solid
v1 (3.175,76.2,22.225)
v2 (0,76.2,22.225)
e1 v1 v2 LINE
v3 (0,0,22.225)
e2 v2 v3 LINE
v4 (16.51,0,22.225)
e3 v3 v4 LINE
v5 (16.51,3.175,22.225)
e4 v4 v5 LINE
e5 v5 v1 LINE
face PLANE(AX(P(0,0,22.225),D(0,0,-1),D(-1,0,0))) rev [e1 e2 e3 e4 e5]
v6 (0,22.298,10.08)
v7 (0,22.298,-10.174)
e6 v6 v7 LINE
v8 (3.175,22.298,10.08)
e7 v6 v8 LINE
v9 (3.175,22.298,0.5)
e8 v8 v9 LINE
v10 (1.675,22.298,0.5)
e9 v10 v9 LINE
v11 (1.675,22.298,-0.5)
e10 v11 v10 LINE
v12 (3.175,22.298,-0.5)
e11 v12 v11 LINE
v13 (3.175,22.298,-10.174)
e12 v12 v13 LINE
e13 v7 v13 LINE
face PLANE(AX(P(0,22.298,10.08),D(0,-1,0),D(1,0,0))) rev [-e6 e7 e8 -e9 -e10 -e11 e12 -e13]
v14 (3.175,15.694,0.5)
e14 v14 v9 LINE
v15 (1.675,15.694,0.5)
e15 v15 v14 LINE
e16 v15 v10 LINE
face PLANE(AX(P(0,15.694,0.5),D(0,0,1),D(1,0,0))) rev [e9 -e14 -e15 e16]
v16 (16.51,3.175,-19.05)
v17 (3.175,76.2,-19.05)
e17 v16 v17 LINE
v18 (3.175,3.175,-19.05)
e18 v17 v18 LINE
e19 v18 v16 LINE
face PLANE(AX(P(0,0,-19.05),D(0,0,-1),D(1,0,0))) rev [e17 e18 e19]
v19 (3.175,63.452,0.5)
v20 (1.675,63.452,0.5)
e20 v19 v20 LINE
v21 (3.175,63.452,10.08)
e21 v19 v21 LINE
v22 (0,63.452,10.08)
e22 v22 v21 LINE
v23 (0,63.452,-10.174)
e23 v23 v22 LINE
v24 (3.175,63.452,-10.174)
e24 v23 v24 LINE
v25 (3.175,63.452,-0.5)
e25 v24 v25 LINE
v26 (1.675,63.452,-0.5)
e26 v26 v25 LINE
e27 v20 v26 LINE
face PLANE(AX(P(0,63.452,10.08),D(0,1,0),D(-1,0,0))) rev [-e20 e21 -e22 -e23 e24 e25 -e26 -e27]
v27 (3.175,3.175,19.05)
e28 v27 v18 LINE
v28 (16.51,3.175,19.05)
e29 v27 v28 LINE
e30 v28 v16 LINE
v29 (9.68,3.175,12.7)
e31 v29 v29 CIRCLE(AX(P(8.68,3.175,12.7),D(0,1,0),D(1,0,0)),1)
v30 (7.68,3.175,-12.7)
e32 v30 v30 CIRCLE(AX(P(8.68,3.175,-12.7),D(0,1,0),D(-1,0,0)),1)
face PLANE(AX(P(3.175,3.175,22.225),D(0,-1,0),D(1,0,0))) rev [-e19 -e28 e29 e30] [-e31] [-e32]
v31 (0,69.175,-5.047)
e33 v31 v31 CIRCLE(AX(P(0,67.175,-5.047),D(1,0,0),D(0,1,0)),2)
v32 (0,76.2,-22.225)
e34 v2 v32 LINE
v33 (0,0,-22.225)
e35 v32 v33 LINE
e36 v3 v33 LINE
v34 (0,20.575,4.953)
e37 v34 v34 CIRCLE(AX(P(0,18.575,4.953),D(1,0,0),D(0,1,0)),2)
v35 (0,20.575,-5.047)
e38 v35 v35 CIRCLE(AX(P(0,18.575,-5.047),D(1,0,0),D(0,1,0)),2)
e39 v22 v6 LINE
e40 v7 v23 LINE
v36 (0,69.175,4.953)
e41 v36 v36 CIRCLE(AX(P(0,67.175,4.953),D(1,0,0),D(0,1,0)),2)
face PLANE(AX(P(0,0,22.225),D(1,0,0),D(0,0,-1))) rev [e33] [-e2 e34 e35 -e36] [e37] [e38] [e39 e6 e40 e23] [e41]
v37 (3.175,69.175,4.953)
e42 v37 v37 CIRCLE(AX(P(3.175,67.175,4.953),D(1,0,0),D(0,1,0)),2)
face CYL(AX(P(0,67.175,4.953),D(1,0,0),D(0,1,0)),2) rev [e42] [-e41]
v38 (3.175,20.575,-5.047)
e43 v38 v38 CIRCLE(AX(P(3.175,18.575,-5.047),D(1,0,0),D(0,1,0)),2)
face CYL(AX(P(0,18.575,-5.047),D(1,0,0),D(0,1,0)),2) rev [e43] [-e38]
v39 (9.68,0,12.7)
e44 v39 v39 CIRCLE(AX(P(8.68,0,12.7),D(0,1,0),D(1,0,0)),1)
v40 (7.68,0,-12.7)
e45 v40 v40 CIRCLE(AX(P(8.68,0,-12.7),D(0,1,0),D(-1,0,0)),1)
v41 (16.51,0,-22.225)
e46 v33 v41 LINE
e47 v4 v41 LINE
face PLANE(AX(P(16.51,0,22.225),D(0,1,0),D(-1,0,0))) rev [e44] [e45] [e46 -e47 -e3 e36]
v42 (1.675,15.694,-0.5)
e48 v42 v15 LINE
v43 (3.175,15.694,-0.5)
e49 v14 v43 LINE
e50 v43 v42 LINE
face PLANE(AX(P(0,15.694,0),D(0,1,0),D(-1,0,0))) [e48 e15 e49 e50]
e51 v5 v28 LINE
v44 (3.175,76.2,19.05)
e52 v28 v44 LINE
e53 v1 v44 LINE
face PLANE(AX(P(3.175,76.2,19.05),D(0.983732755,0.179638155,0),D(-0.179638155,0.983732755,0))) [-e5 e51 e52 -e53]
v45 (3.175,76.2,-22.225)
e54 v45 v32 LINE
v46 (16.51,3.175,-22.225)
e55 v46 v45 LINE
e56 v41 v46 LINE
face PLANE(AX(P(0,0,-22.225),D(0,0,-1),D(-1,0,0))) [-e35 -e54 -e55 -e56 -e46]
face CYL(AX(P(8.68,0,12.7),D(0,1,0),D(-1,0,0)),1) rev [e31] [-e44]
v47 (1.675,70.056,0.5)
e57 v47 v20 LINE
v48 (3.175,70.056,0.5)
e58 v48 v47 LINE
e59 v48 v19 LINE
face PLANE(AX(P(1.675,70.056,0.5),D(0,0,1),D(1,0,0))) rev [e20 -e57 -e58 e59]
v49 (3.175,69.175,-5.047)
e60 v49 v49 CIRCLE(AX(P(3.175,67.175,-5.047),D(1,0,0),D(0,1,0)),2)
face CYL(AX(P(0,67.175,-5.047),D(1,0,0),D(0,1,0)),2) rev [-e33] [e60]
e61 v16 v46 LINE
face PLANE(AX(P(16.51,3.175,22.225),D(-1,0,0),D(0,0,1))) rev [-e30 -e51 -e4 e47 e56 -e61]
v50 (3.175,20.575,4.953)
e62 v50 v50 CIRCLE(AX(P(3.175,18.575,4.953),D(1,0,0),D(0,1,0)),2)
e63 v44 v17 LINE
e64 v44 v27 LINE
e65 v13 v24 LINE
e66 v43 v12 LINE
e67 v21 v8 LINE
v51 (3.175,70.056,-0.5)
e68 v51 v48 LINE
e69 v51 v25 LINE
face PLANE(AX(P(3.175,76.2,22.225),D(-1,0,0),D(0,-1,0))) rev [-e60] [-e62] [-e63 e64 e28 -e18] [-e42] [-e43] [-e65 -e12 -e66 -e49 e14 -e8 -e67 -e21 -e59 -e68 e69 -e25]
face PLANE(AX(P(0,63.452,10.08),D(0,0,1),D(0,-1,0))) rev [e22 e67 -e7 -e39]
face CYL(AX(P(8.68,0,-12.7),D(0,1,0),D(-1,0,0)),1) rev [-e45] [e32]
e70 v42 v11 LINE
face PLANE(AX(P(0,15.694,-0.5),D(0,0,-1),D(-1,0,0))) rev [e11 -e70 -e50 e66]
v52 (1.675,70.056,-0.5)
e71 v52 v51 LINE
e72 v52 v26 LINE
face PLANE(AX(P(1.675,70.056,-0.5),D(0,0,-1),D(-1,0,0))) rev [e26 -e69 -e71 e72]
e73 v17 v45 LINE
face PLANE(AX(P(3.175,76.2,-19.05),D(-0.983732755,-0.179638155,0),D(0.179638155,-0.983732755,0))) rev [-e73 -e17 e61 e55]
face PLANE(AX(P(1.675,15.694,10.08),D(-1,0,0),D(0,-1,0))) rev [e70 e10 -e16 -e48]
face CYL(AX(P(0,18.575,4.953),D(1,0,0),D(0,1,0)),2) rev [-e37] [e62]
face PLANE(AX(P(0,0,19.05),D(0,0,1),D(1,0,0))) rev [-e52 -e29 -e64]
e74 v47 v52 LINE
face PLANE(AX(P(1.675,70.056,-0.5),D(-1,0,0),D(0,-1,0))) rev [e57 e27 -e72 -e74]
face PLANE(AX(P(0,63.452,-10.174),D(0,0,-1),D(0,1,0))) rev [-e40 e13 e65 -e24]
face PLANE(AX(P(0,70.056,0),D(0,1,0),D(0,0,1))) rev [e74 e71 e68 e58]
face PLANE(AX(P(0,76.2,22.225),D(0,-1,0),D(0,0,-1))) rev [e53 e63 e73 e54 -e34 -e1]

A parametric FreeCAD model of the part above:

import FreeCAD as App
import Part
import Sketcher

V = App.Vector
Q = App.Units.Quantity

doc = App.newDocument("Part")
body = doc.addObject("PartDesign::Body", "Body")

sketch1 = body.newObject("Sketcher::SketchObject", "Sketch")
sketch1.AttachmentSupport = (doc.getObject("XY_Plane"), [""])
sketch1.MapMode = "FlatFace"
sketch1.addGeometry([
    Part.LineSegment(V(0, 76.2, 0), V(0, 0, 0)),
    Part.LineSegment(V(0, 0, 0), V(16.51, 0, 0)),
    Part.LineSegment(V(16.51, 0, 0), V(16.51, 3.175, 0)),
    Part.LineSegment(V(16.51, 3.175, 0), V(3.175, 3.175, 0)),
    Part.LineSegment(V(3.175, 3.175, 0), V(3.175, 76.2, 0)),
    Part.LineSegment(V(3.175, 76.2, 0), V(0, 76.2, 0)),
], False)
sketch1.addConstraint([
    Sketcher.Constraint("Coincident", 0, 2, 1, 1),
    Sketcher.Constraint("Coincident", 1, 2, 2, 1),
    Sketcher.Constraint("Coincident", 2, 2, 3, 1),
    Sketcher.Constraint("Coincident", 3, 2, 4, 1),
    Sketcher.Constraint("Coincident", 4, 2, 5, 1),
    Sketcher.Constraint("Coincident", 5, 2, 0, 1),
    Sketcher.Constraint("Vertical", 0),
    Sketcher.Constraint("Horizontal", 1),
    Sketcher.Constraint("Vertical", 2),
    Sketcher.Constraint("Horizontal", 3),
    Sketcher.Constraint("Vertical", 4),
    Sketcher.Constraint("Horizontal", 5),
    Sketcher.Constraint("Coincident", 0, 2, -1, 1),
    Sketcher.Constraint("Equal", 5, 2),
    Sketcher.Constraint("DistanceY", 0, 2, 0, 1, Q("3 in")),
    Sketcher.Constraint("DistanceX", 1, 1, 1, 2, Q("0.65 in")),
    Sketcher.Constraint("DistanceX", 3, 2, 3, 1, Q("0.525 in")),
])
pad1 = body.newObject("PartDesign::Pad", "Pad")
pad1.Profile = sketch1
pad1.Length = Q("1.75 in")
pad1.Midplane = True

sketch2 = body.newObject("Sketcher::SketchObject", "Sketch001")
sketch2.AttachmentSupport = (doc.getObject("XY_Plane"), [""])
sketch2.MapMode = "FlatFace"
sketch2.AttachmentOffset = App.Placement(V(0, 0, 0.875 * 25.4), App.Rotation())
sketch2.addGeometry([
    Part.LineSegment(V(16.51, 3.175, 0), V(3.175, 76.2, 0)),
    Part.LineSegment(V(3.175, 76.2, 0), V(3.175, 3.175, 0)),
    Part.LineSegment(V(3.175, 3.175, 0), V(16.51, 3.175, 0)),
], False)
sketch2.addConstraint([
    Sketcher.Constraint("Coincident", 0, 2, 1, 1),
    Sketcher.Constraint("Coincident", 1, 2, 2, 1),
    Sketcher.Constraint("Coincident", 2, 2, 0, 1),
    Sketcher.Constraint("Vertical", 1),
    Sketcher.Constraint("Horizontal", 2),
    Sketcher.Constraint("DistanceY", -1, 1, 0, 2, Q("3 in")),
    Sketcher.Constraint("DistanceX", 2, 1, 2, 2, Q("0.525 in")),
    Sketcher.Constraint("DistanceY", 1, 2, 1, 1, Q("2.875 in")),
    Sketcher.Constraint("DistanceX", -1, 1, 2, 2, Q("0.65 in")),
])
pad2 = body.newObject("PartDesign::Pad", "Pad001")
pad2.Profile = sketch2
pad2.Length = Q("0.125 in")
pad2.Reversed = True
doc.recompute()

mirrored = body.newObject("PartDesign::Mirrored", "Mirrored")
mirrored.Originals = [pad2]
mirrored.MirrorPlane = (doc.getObject("XY_Plane"), [""])
body.Tip = mirrored

sketch3 = body.newObject("Sketcher::SketchObject", "Sketch002")
sketch3.AttachmentSupport = (doc.getObject("XZ_Plane"), [""])
sketch3.MapMode = "FlatFace"
sketch3.AttachmentOffset = App.Placement(V(0, 0, -0.125 * 25.4), App.Rotation())
sketch3.addGeometry([
    Part.Circle(V(8.68, -12.7, 0), V(0, 0, 1), 1),
    Part.Circle(V(8.68, 12.7, 0), V(0, 0, 1), 1),
], False)
sketch3.addConstraint([
    Sketcher.Constraint("Equal", 0, 1),
    Sketcher.Constraint("Symmetric", 0, 3, 1, 3, -1),
    Sketcher.Constraint("DistanceY", 0, 3, 1, 3, Q("1 in")),
    Sketcher.Constraint("Diameter", 0, Q("2 mm")),
    Sketcher.Constraint("DistanceX", -1, 1, 0, 3, Q("8.68 mm")),
])
pocket1 = body.newObject("PartDesign::Pocket", "Pocket")
pocket1.Profile = sketch3
pocket1.Type = "ThroughAll"
pocket1.Reversed = True

sketch4 = body.newObject("Sketcher::SketchObject", "Sketch003")
sketch4.AttachmentSupport = (doc.getObject("YZ_Plane"), [""])
sketch4.MapMode = "FlatFace"
sketch4.AttachmentOffset = App.Placement(V(0, 0, 0.125 * 25.4), App.Rotation())
sketch4.addGeometry([
    Part.Circle(V(18.575, 4.953, 0), V(0, 0, 1), 2),
    Part.Circle(V(18.575, -5.047, 0), V(0, 0, 1), 2),
    Part.Circle(V(67.175, 4.953, 0), V(0, 0, 1), 2),
    Part.Circle(V(67.175, -5.047, 0), V(0, 0, 1), 2),
], False)
sketch4.addConstraint([
    Sketcher.Constraint("Equal", 0, 1),
    Sketcher.Constraint("Equal", 1, 2),
    Sketcher.Constraint("Equal", 2, 3),
    Sketcher.Constraint("Horizontal", 0, 3, 2, 3),
    Sketcher.Constraint("Horizontal", 1, 3, 3, 3),
    Sketcher.Constraint("Vertical", 0, 3, 1, 3),
    Sketcher.Constraint("Vertical", 2, 3, 3, 3),
    Sketcher.Constraint("Diameter", 0, Q("4 mm")),
    Sketcher.Constraint("DistanceY", -1, 1, 0, 3, Q("0.195 in")),
    Sketcher.Constraint("DistanceX", -1, 1, 0, 3, Q("18.575 mm")),
    Sketcher.Constraint("DistanceY", 1, 3, -1, 1, Q("5.047 mm")),
    Sketcher.Constraint("DistanceX", -1, 1, 2, 3, Q("67.175 mm")),
])
pocket2 = body.newObject("PartDesign::Pocket", "Pocket001")
pocket2.Profile = sketch4
pocket2.Type = "ThroughAll"

sketch5 = body.newObject("Sketcher::SketchObject", "Sketch004")
sketch5.AttachmentSupport = (doc.getObject("YZ_Plane"), [""])
sketch5.MapMode = "FlatFace"
sketch5.AttachmentOffset = App.Placement(V(0, 0, 0.125 * 25.4), App.Rotation())
sketch5.addGeometry([
    Part.LineSegment(V(63.452, 10.08, 0), V(22.298, 10.08, 0)),
    Part.LineSegment(V(22.298, 10.08, 0), V(22.298, -10.174, 0)),
    Part.LineSegment(V(22.298, -10.174, 0), V(63.452, -10.174, 0)),
    Part.LineSegment(V(63.452, -10.174, 0), V(63.452, 10.08, 0)),
], False)
sketch5.addConstraint([
    Sketcher.Constraint("Coincident", 0, 2, 1, 1),
    Sketcher.Constraint("Coincident", 1, 2, 2, 1),
    Sketcher.Constraint("Coincident", 2, 2, 3, 1),
    Sketcher.Constraint("Coincident", 3, 2, 0, 1),
    Sketcher.Constraint("Horizontal", 0),
    Sketcher.Constraint("Vertical", 1),
    Sketcher.Constraint("Horizontal", 2),
    Sketcher.Constraint("Vertical", 3),
    Sketcher.Constraint("DistanceX", 0, 2, 0, 1, Q("41.154 mm")),
    Sketcher.Constraint("DistanceY", 1, 2, 1, 1, Q("20.254 mm")),
    Sketcher.Constraint("DistanceX", -1, 1, 0, 2, Q("22.298 mm")),
    Sketcher.Constraint("DistanceY", -1, 1, 0, 2, Q("10.08 mm")),
])
pocket3 = body.newObject("PartDesign::Pocket", "Pocket002")
pocket3.Profile = sketch5
pocket3.Type = "ThroughAll"

sketch6 = body.newObject("Sketcher::SketchObject", "Sketch005")
sketch6.AttachmentSupport = (doc.getObject("XZ_Plane"), [""])
sketch6.MapMode = "FlatFace"
sketch6.AttachmentOffset = App.Placement(V(0, 0, -63.452), App.Rotation())
sketch6.addGeometry([
    Part.LineSegment(V(1.675, 0.5, 0), V(1.675, -0.5, 0)),
    Part.LineSegment(V(1.675, -0.5, 0), V(3.175, -0.5, 0)),
    Part.LineSegment(V(3.175, -0.5, 0), V(3.175, 0.5, 0)),
    Part.LineSegment(V(3.175, 0.5, 0), V(1.675, 0.5, 0)),
], False)
sketch6.addConstraint([
    Sketcher.Constraint("Coincident", 0, 2, 1, 1),
    Sketcher.Constraint("Coincident", 1, 2, 2, 1),
    Sketcher.Constraint("Coincident", 2, 2, 3, 1),
    Sketcher.Constraint("Coincident", 3, 2, 0, 1),
    Sketcher.Constraint("Vertical", 0),
    Sketcher.Constraint("Horizontal", 1),
    Sketcher.Constraint("Vertical", 2),
    Sketcher.Constraint("Horizontal", 3),
    Sketcher.Constraint("DistanceX", -1, 1, 1, 2, Q("0.125 in")),
    Sketcher.Constraint("DistanceX", 1, 1, 1, 2, Q("1.5 mm")),
    Sketcher.Constraint("DistanceY", 0, 2, 0, 1, Q("1 mm")),
    Sketcher.Constraint("DistanceY", 0, 2, -1, 1, Q("0.5 mm")),
])
pocket4 = body.newObject("PartDesign::Pocket", "Pocket003")
pocket4.Profile = sketch6
pocket4.Length = Q("0.26 in")

sketch7 = body.newObject("Sketcher::SketchObject", "Sketch006")
sketch7.AttachmentSupport = (doc.getObject("XZ_Plane"), [""])
sketch7.MapMode = "FlatFace"
sketch7.AttachmentOffset = App.Placement(V(0, 0, -22.298), App.Rotation())
sketch7.addGeometry([
    Part.LineSegment(V(1.675, 0.5, 0), V(1.675, -0.5, 0)),
    Part.LineSegment(V(1.675, -0.5, 0), V(3.175, -0.5, 0)),
    Part.LineSegment(V(3.175, -0.5, 0), V(3.175, 0.5, 0)),
    Part.LineSegment(V(3.175, 0.5, 0), V(1.675, 0.5, 0)),
], False)
sketch7.addConstraint([
    Sketcher.Constraint("Coincident", 0, 2, 1, 1),
    Sketcher.Constraint("Coincident", 1, 2, 2, 1),
    Sketcher.Constraint("Coincident", 2, 2, 3, 1),
    Sketcher.Constraint("Coincident", 3, 2, 0, 1),
    Sketcher.Constraint("Vertical", 0),
    Sketcher.Constraint("Horizontal", 1),
    Sketcher.Constraint("Vertical", 2),
    Sketcher.Constraint("Horizontal", 3),
    Sketcher.Constraint("DistanceX", -1, 1, 1, 2, Q("0.125 in")),
    Sketcher.Constraint("DistanceX", 1, 1, 1, 2, Q("1.5 mm")),
    Sketcher.Constraint("DistanceY", 0, 2, 0, 1, Q("1 mm")),
    Sketcher.Constraint("DistanceY", 0, 2, -1, 1, Q("0.5 mm")),
])
pocket5 = body.newObject("PartDesign::Pocket", "Pocket004")
pocket5.Profile = sketch7
pocket5.Length = Q("0.26 in")
pocket5.Reversed = True

doc.recompute()
